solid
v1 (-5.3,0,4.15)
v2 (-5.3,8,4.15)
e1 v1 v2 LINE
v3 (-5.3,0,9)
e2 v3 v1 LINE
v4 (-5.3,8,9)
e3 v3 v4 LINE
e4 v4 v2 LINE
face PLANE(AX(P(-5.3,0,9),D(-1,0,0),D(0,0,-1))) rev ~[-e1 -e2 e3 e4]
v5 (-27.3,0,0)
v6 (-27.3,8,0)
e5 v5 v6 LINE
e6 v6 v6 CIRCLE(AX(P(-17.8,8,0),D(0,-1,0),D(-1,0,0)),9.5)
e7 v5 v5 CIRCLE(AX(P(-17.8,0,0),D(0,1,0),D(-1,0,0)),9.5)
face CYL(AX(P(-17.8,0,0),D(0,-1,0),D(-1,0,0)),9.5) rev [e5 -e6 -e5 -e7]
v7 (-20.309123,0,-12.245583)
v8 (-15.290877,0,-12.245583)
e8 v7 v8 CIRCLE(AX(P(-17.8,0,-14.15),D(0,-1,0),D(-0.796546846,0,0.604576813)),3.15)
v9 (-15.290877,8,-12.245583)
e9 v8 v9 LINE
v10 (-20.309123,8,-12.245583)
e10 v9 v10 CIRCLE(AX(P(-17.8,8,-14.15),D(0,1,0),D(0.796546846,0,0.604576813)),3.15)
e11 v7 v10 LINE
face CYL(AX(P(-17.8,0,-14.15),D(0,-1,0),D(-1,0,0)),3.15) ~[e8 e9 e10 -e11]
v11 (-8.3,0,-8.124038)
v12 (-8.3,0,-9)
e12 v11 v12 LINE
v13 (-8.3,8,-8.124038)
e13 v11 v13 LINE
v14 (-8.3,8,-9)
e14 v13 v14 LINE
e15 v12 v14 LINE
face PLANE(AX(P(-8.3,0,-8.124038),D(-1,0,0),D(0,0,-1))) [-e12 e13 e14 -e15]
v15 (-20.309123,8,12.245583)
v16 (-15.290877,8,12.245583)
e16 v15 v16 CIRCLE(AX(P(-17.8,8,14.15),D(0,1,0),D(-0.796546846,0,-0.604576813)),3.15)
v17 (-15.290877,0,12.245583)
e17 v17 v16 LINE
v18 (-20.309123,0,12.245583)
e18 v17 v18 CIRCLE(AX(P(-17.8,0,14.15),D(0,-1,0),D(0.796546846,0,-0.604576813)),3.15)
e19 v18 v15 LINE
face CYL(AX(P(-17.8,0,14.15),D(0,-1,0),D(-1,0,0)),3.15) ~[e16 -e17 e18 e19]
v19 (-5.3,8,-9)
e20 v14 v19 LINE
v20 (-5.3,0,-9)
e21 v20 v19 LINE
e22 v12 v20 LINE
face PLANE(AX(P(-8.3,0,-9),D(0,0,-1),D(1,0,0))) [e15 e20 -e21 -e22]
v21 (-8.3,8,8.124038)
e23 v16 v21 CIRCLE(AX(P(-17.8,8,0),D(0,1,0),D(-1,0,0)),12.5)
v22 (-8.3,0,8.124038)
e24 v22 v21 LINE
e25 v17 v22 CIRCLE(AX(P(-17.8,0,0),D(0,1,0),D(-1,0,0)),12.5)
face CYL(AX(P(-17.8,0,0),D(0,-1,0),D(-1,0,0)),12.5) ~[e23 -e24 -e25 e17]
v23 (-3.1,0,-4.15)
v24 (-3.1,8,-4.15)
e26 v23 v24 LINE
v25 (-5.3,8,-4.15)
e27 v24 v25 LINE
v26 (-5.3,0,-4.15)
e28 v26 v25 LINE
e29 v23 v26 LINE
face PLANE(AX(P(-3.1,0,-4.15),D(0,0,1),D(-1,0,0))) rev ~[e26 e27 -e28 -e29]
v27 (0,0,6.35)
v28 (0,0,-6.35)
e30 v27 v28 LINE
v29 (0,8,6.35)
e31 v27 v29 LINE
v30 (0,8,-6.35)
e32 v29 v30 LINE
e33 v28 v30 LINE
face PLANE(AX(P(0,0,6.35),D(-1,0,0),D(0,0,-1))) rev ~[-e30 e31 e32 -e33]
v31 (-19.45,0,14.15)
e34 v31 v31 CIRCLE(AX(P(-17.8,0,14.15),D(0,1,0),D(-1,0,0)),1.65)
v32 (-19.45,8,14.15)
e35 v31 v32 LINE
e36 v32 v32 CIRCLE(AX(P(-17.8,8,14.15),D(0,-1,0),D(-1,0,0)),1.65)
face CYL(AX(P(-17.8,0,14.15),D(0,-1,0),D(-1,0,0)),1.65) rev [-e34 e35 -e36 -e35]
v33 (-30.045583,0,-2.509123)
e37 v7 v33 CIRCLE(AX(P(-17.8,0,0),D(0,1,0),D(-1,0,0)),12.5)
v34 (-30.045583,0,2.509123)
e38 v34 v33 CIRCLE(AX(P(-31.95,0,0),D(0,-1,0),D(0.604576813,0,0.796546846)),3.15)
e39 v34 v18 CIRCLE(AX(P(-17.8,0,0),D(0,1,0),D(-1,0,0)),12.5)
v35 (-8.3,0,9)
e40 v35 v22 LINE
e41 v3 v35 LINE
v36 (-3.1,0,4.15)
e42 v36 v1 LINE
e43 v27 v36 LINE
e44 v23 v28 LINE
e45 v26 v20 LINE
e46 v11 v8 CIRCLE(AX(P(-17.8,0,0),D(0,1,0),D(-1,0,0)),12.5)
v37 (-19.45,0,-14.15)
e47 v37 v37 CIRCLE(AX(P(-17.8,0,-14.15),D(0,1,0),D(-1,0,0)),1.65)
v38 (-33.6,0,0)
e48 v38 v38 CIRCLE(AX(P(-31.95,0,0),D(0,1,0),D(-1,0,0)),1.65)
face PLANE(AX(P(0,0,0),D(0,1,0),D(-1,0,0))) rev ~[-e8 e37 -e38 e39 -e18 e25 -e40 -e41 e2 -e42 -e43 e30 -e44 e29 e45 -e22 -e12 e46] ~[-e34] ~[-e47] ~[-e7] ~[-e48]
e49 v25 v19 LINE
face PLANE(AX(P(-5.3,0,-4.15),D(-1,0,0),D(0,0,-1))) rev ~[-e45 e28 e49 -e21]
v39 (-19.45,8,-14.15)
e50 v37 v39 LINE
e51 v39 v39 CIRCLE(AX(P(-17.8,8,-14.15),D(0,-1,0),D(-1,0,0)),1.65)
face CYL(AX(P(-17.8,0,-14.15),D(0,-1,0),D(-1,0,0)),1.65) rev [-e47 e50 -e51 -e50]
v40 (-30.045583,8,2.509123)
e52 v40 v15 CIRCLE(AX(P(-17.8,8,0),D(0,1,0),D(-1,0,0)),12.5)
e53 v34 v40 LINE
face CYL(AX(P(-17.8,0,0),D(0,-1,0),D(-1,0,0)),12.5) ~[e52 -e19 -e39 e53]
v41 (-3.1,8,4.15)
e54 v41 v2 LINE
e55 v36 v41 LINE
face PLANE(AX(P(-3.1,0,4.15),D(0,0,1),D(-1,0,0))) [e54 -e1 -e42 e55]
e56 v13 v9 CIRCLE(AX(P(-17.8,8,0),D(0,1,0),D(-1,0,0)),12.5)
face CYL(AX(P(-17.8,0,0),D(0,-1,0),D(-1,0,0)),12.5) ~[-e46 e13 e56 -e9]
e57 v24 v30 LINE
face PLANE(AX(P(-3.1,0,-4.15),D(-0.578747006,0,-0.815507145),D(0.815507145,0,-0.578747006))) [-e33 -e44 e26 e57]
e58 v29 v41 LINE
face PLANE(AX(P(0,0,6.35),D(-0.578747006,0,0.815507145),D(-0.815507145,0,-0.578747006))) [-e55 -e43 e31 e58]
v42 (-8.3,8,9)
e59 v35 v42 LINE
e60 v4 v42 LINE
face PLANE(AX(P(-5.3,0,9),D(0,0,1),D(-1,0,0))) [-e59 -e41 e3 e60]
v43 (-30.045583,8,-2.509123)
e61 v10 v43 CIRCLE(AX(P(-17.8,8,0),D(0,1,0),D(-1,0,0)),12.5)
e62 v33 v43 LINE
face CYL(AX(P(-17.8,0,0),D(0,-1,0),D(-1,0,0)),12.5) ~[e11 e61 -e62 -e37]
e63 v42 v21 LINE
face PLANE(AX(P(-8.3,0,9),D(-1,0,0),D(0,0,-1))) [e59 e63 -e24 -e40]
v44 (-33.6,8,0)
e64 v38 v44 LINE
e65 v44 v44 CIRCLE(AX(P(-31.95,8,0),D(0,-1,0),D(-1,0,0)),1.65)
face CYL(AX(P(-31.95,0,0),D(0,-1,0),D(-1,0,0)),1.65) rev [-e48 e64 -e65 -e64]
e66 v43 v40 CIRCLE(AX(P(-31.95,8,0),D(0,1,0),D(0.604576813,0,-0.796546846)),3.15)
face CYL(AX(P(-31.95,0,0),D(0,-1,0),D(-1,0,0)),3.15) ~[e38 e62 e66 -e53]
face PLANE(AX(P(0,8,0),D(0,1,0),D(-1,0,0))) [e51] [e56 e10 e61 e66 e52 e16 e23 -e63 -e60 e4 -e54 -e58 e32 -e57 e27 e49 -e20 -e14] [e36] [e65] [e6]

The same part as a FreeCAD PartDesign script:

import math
import FreeCAD as App
import Part
import Sketcher

doc = App.newDocument("Part")
body = doc.addObject("PartDesign::Body", "Body")

sketch1 = doc.addObject("Sketcher::SketchObject", "Sketch")
body.addObject(sketch1)
sketch1.AttachmentSupport = (doc.XZ_Plane, [""])
sketch1.MapMode = "FlatFace"
sketch1.addGeometry([
    Part.LineSegment(App.Vector(-3.1, 4.2, 0), App.Vector(0, 6.3, 0)),
    Part.LineSegment(App.Vector(0, 6.3, 0), App.Vector(0, -6.3, 0)),
    Part.LineSegment(App.Vector(0, -6.3, 0), App.Vector(-3.1, -4.2, 0)),
    Part.LineSegment(App.Vector(-3.1, -4.2, 0), App.Vector(-5.3, -4.2, 0)),
    Part.LineSegment(App.Vector(-5.3, -4.2, 0), App.Vector(-5.3, -9, 0)),
    Part.LineSegment(App.Vector(-5.3, -9, 0), App.Vector(-8.3, -9, 0)),
    Part.LineSegment(App.Vector(-8.3, -9, 0), App.Vector(-8.3, -8.1, 0)),
    Part.ArcOfCircle(Part.Circle(App.Vector(-17.8, 0, 0), App.Vector(0, 0, 1), 12.5), math.radians(-78), math.radians(-41)),
    Part.ArcOfCircle(Part.Circle(App.Vector(-17.8, -14.2, 0), App.Vector(0, 0, 1), 3.1), math.radians(143), math.radians(397)),
    Part.ArcOfCircle(Part.Circle(App.Vector(-17.8, 0, 0), App.Vector(0, 0, 1), 12.5), math.radians(-168), math.radians(-102)),
    Part.ArcOfCircle(Part.Circle(App.Vector(-31.9, 0, 0), App.Vector(0, 0, 1), 3.1), math.radians(53), math.radians(307)),
    Part.ArcOfCircle(Part.Circle(App.Vector(-17.8, 0, 0), App.Vector(0, 0, 1), 12.5), math.radians(102), math.radians(168)),
    Part.ArcOfCircle(Part.Circle(App.Vector(-17.8, 14.2, 0), App.Vector(0, 0, 1), 3.1), math.radians(-37), math.radians(217)),
    Part.ArcOfCircle(Part.Circle(App.Vector(-17.8, 0, 0), App.Vector(0, 0, 1), 12.5), math.radians(41), math.radians(78)),
    Part.LineSegment(App.Vector(-8.3, 8.1, 0), App.Vector(-8.3, 9, 0)),
    Part.LineSegment(App.Vector(-8.3, 9, 0), App.Vector(-5.3, 9, 0)),
    Part.LineSegment(App.Vector(-5.3, 9, 0), App.Vector(-5.3, 4.2, 0)),
    Part.LineSegment(App.Vector(-5.3, 4.2, 0), App.Vector(-3.1, 4.2, 0)),
    Part.Circle(App.Vector(-17.8, 0, 0), App.Vector(0, 0, 1), 9.5),
    Part.Circle(App.Vector(-17.8, 14.2, 0), App.Vector(0, 0, 1), 1.6),
    Part.Circle(App.Vector(-31.9, 0, 0), App.Vector(0, 0, 1), 1.6),
    Part.Circle(App.Vector(-17.8, -14.2, 0), App.Vector(0, 0, 1), 1.6),
], False)
sketch1.addConstraint([
    Sketcher.Constraint("Coincident", 0, 2, 1, 1),
    Sketcher.Constraint("Coincident", 1, 2, 2, 1),
    Sketcher.Constraint("Coincident", 2, 2, 3, 1),
    Sketcher.Constraint("Coincident", 3, 2, 4, 1),
    Sketcher.Constraint("Coincident", 4, 2, 5, 1),
    Sketcher.Constraint("Coincident", 5, 2, 6, 1),
    Sketcher.Constraint("Coincident", 6, 2, 7, 2),
    Sketcher.Constraint("Coincident", 7, 1, 8, 2),
    Sketcher.Constraint("Coincident", 8, 1, 9, 2),
    Sketcher.Constraint("Coincident", 9, 1, 10, 2),
    Sketcher.Constraint("Coincident", 10, 1, 11, 2),
    Sketcher.Constraint("Coincident", 11, 1, 12, 2),
    Sketcher.Constraint("Coincident", 12, 1, 13, 2),
    Sketcher.Constraint("Coincident", 13, 1, 14, 1),
    Sketcher.Constraint("Coincident", 14, 2, 15, 1),
    Sketcher.Constraint("Coincident", 15, 2, 16, 1),
    Sketcher.Constraint("Coincident", 16, 2, 17, 1),
    Sketcher.Constraint("Coincident", 17, 2, 0, 1),
    Sketcher.Constraint("Vertical", 1),
    Sketcher.Constraint("Horizontal", 3),
    Sketcher.Constraint("Vertical", 4),
    Sketcher.Constraint("Horizontal", 5),
    Sketcher.Constraint("Vertical", 6),
    Sketcher.Constraint("Vertical", 14),
    Sketcher.Constraint("Horizontal", 15),
    Sketcher.Constraint("Vertical", 16),
    Sketcher.Constraint("Horizontal", 17),
    Sketcher.Constraint("Coincident", 9, 3, 7, 3),
    Sketcher.Constraint("Coincident", 11, 3, 7, 3),
    Sketcher.Constraint("Coincident", 13, 3, 7, 3),
    Sketcher.Constraint("Coincident", 18, 3, 7, 3),
    Sketcher.Constraint("Coincident", 19, 3, 12, 3),
    Sketcher.Constraint("Coincident", 20, 3, 10, 3),
    Sketcher.Constraint("Coincident", 21, 3, 8, 3),
    Sketcher.Constraint("Equal", 7, 9),
    Sketcher.Constraint("Equal", 8, 10),
    Sketcher.Constraint("Equal", 9, 11),
    Sketcher.Constraint("Equal", 10, 12),
    Sketcher.Constraint("Equal", 11, 13),
    Sketcher.Constraint("Equal", 19, 20),
    Sketcher.Constraint("Equal", 20, 21),
    Sketcher.Constraint("Symmetric", 0, 2, 1, 2, -1, 1),
    Sketcher.Constraint("Symmetric", 8, 3, 12, 3, -1),
    Sketcher.Constraint("Symmetric", 9, 1, 10, 1, -1),
    Sketcher.Constraint("Symmetric", 5, 2, 14, 2, -1),
    Sketcher.Constraint("Symmetric", 3, 2, 16, 2, -1),
    Sketcher.Constraint("Horizontal", 7, 1, 8, 1),
    Sketcher.Constraint("Vertical", 2, 2, 17, 2),
    Sketcher.Constraint("Diameter", 18, 19.0),
    Sketcher.Constraint("Diameter", 19, 3.3),
    Sketcher.Constraint("Radius", 7, 12.5),
    Sketcher.Constraint("DistanceX", 5, 2, 5, 1, 3.0),
    Sketcher.Constraint("Radius", 8, 3.15),
    Sketcher.Constraint("DistanceX", 3, 2, 3, 1, 2.2),
    Sketcher.Constraint("DistanceY", 1, 2, 1, 1, 12.7),
    Sketcher.Constraint("DistanceX", 2, 2, -1, 1, 3.1),
    Sketcher.Constraint("DistanceY", 1, 2, 2, 2, 2.2),
    Sketcher.Constraint("DistanceY", 4, 2, -1, 1, 9.0),
    Sketcher.Constraint("DistanceX", 7, 3, -1, 1, 17.8),
    Sketcher.Constraint("DistanceY", 8, 3, 12, 3, 28.3),
    Sketcher.Constraint("DistanceX", 10, 3, -1, 1, 31.95),
])
pad1 = doc.addObject("PartDesign::Pad", "Pad")
body.addObject(pad1)
pad1.Profile = sketch1
pad1.Length = 8
pad1.Reversed = True

doc.recompute()
